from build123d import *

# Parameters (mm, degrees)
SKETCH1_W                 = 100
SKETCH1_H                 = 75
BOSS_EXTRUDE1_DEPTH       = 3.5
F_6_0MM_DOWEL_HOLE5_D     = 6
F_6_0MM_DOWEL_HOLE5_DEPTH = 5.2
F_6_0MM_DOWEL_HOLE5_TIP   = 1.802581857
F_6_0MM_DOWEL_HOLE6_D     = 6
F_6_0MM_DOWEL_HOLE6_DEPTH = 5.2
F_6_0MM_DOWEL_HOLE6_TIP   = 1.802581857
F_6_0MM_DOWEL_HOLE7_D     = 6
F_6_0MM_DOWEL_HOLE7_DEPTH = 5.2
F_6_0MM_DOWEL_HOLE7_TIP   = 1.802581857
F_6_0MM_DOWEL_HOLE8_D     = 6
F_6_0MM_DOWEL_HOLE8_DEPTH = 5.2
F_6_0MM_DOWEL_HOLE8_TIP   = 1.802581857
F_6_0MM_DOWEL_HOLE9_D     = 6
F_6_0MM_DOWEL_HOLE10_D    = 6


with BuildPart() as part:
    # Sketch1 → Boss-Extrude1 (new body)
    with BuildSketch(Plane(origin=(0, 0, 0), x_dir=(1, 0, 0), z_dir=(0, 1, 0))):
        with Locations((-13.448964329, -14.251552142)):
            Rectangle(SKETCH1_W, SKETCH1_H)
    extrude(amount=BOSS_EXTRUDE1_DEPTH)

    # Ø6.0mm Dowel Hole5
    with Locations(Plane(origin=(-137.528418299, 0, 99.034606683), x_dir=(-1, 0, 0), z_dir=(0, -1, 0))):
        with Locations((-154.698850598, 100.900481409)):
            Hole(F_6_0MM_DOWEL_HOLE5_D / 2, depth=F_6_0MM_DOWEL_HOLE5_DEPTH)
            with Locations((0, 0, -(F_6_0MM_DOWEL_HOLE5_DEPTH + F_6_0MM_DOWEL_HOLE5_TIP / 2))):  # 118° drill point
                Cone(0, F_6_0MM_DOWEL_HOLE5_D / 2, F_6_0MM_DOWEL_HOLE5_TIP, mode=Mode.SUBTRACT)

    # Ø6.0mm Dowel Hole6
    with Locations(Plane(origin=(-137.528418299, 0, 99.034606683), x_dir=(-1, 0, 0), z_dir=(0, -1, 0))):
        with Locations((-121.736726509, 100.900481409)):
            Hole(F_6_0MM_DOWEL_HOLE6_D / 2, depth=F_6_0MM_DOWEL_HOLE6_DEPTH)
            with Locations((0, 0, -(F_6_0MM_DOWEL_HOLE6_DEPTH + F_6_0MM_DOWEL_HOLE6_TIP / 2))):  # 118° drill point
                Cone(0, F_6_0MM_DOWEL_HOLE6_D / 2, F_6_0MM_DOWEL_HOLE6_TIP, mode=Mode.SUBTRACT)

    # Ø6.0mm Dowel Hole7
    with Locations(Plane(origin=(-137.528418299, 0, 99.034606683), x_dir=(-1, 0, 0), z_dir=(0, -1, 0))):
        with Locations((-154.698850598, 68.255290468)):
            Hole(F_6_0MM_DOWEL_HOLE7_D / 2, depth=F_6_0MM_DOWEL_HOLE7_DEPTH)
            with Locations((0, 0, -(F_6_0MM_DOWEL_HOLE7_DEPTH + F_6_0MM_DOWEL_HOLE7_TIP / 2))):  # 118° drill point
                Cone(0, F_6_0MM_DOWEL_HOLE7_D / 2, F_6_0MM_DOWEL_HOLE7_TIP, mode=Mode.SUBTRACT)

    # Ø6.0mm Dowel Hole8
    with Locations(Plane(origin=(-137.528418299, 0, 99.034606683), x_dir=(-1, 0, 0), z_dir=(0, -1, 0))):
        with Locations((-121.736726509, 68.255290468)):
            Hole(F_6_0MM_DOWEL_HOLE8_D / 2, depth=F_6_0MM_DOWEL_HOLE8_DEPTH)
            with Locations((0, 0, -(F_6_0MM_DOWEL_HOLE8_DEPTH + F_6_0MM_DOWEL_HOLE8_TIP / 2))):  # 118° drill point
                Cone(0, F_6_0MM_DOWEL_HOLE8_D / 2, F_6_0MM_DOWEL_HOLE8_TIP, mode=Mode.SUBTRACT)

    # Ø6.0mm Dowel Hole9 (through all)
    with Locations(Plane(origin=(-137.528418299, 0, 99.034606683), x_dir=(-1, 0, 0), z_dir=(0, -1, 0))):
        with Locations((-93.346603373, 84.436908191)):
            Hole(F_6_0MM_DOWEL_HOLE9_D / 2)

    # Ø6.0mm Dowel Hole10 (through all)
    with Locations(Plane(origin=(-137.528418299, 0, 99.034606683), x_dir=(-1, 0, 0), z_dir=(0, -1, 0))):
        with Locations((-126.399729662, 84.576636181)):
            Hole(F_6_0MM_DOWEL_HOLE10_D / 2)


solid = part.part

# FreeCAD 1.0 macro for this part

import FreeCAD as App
import Part
import Sketcher

V = App.Vector


def add_polygon(sketch, points):
    """Adds a closed chain of lines whose ends are joined by coincident constraints."""
    first, n = sketch.GeometryCount, len(points)
    for a, b in zip(points, points[1:] + points[:1]):
        sketch.addGeometry(Part.LineSegment(App.Vector(*a, 0), App.Vector(*b, 0)), False)
    for i in range(n):
        sketch.addConstraint(Sketcher.Constraint("Coincident", first + i, 2, first + (i + 1) % n, 1))

doc = App.newDocument("Part")
params = doc.addObject("Spreadsheet::Sheet", "Params")
for row, (alias, value) in enumerate([
    ("sketch1_width", "100 mm"),
    ("sketch1_height", "75 mm"),
    ("pad1_length", "3.5 mm"),
    ("sketch2_diameter", "6 mm"),
    ("hole_diameter", "6 mm"),
    ("hole_depth", "5.2 mm"),
    ("sketch3_diameter", "6 mm"),
    ("hole2_diameter", "6 mm"),
    ("hole2_depth", "5.2 mm"),
    ("sketch4_diameter", "6 mm"),
    ("hole3_diameter", "6 mm"),
    ("hole3_depth", "5.2 mm"),
    ("sketch5_diameter", "6 mm"),
    ("hole4_diameter", "6 mm"),
    ("hole4_depth", "5.2 mm"),
    ("sketch6_diameter", "6 mm"),
    ("hole5_diameter", "6 mm"),
    ("sketch7_diameter", "6 mm"),
    ("hole6_diameter", "6 mm"),
], start=1):
    params.set(f"A{row}", alias)
    params.set(f"B{row}", "=" + value)
    params.setAlias(f"B{row}", alias)

body = doc.addObject("PartDesign::Body", "Body")

# Sketch on XZ plane
sketch1 = body.newObject("Sketcher::SketchObject", "Sketch")
sketch1.AttachmentSupport = (doc.getObject("XZ_Plane"), [""])
sketch1.MapMode = "FlatFace"
add_polygon(sketch1, [(-63, -23), (-63, 52), (37, 52), (37, -23)])  # lines 0-3
sketch1.addConstraint(Sketcher.Constraint("Vertical", 0))
sketch1.addConstraint(Sketcher.Constraint("Horizontal", 1))
sketch1.addConstraint(Sketcher.Constraint("Vertical", 2))
sketch1.addConstraint(Sketcher.Constraint("Horizontal", 3))
sketch1.addConstraint(Sketcher.Constraint("DistanceX", 1, 1, 1, 2, 100.0))
sketch1.addConstraint(Sketcher.Constraint("DistanceY", 0, 1, 0, 2, 75.0))
sketch1.addConstraint(Sketcher.Constraint("DistanceX", 0, 2, -1, 1, 63.448964))
sketch1.addConstraint(Sketcher.Constraint("DistanceY", -1, 1, 0, 2, 51.751552))
sketch1.setExpression("Constraints[8]", "Params.sketch1_width")
sketch1.setExpression("Constraints[9]", "Params.sketch1_height")
pad1 = body.newObject("PartDesign::Pad", "Pad")
pad1.Profile = sketch1
pad1.setExpression("Length", "Params.pad1_length")
pad1.Reversed = True

# Sketch on XZ plane
sketch2 = body.newObject("Sketcher::SketchObject", "Sketch001")
sketch2.AttachmentSupport = (doc.getObject("XZ_Plane"), [""])
sketch2.MapMode = "FlatFace"
sketch2.addGeometry(Part.Circle(V(17.2, -1.9, 0), V(0, 0, 1), 3), False)
sketch2.addConstraint(Sketcher.Constraint("Diameter", 0, 6.0))
sketch2.addConstraint(Sketcher.Constraint("DistanceX", -1, 1, 0, 3, 17.170432))
sketch2.addConstraint(Sketcher.Constraint("DistanceY", 0, 3, -1, 1, 1.865875))
sketch2.setExpression("Constraints[0]", "Params.sketch2_diameter")
doc.recompute()
hole = body.newObject("PartDesign::Hole", "Hole")
hole.Profile = sketch2
hole.ThreadType = "None"
hole.setExpression("Diameter", "Params.hole_diameter")
hole.DepthType = "Dimension"
hole.setExpression("Depth", "Params.hole_depth")
hole.DrillPoint = "Angled"
hole.DrillPointAngle = 118

# Sketch on XZ plane
sketch3 = body.newObject("Sketcher::SketchObject", "Sketch002")
sketch3.AttachmentSupport = (doc.getObject("XZ_Plane"), [""])
sketch3.MapMode = "FlatFace"
sketch3.addGeometry(Part.Circle(V(-15.8, -1.9, 0), V(0, 0, 1), 3), False)
sketch3.addConstraint(Sketcher.Constraint("Diameter", 0, 6.0))
sketch3.addConstraint(Sketcher.Constraint("DistanceX", 0, 3, -1, 1, 15.791692))
sketch3.addConstraint(Sketcher.Constraint("DistanceY", 0, 3, -1, 1, 1.865875))
sketch3.setExpression("Constraints[0]", "Params.sketch3_diameter")
doc.recompute()
hole2 = body.newObject("PartDesign::Hole", "Hole001")
hole2.Profile = sketch3
hole2.ThreadType = "None"
hole2.setExpression("Diameter", "Params.hole2_diameter")
hole2.DepthType = "Dimension"
hole2.setExpression("Depth", "Params.hole2_depth")
hole2.DrillPoint = "Angled"
hole2.DrillPointAngle = 118

# Sketch on XZ plane
sketch4 = body.newObject("Sketcher::SketchObject", "Sketch003")
sketch4.AttachmentSupport = (doc.getObject("XZ_Plane"), [""])
sketch4.MapMode = "FlatFace"
sketch4.addGeometry(Part.Circle(V(17.2, 30.8, 0), V(0, 0, 1), 3), False)
sketch4.addConstraint(Sketcher.Constraint("Diameter", 0, 6.0))
sketch4.addConstraint(Sketcher.Constraint("DistanceX", -1, 1, 0, 3, 17.170432))
sketch4.addConstraint(Sketcher.Constraint("DistanceY", -1, 1, 0, 3, 30.779316))
sketch4.setExpression("Constraints[0]", "Params.sketch4_diameter")
doc.recompute()
hole3 = body.newObject("PartDesign::Hole", "Hole002")
hole3.Profile = sketch4
hole3.ThreadType = "None"
hole3.setExpression("Diameter", "Params.hole3_diameter")
hole3.DepthType = "Dimension"
hole3.setExpression("Depth", "Params.hole3_depth")
hole3.DrillPoint = "Angled"
hole3.DrillPointAngle = 118

# Sketch on XZ plane
sketch5 = body.newObject("Sketcher::SketchObject", "Sketch004")
sketch5.AttachmentSupport = (doc.getObject("XZ_Plane"), [""])
sketch5.MapMode = "FlatFace"
sketch5.addGeometry(Part.Circle(V(-15.8, 30.8, 0), V(0, 0, 1), 3), False)
sketch5.addConstraint(Sketcher.Constraint("Diameter", 0, 6.0))
sketch5.addConstraint(Sketcher.Constraint("DistanceX", 0, 3, -1, 1, 15.791692))
sketch5.addConstraint(Sketcher.Constraint("DistanceY", -1, 1, 0, 3, 30.779316))
sketch5.setExpression("Constraints[0]", "Params.sketch5_diameter")
doc.recompute()
hole4 = body.newObject("PartDesign::Hole", "Hole003")
hole4.Profile = sketch5
hole4.ThreadType = "None"
hole4.setExpression("Diameter", "Params.hole4_diameter")
hole4.DepthType = "Dimension"
hole4.setExpression("Depth", "Params.hole4_depth")
hole4.DrillPoint = "Angled"
hole4.DrillPointAngle = 118

# Sketch on XZ plane
sketch6 = body.newObject("Sketcher::SketchObject", "Sketch005")
sketch6.AttachmentSupport = (doc.getObject("XZ_Plane"), [""])
sketch6.MapMode = "FlatFace"
sketch6.addGeometry(Part.Circle(V(-44.2, 14.6, 0), V(0, 0, 1), 3), False)
sketch6.addConstraint(Sketcher.Constraint("Diameter", 0, 6.0))
sketch6.addConstraint(Sketcher.Constraint("DistanceY", -1, 1, 0, 3, 14.597698))
sketch6.addConstraint(Sketcher.Constraint("DistanceX", 0, 3, -1, 1, 44.181815))
sketch6.setExpression("Constraints[0]", "Params.sketch6_diameter")
doc.recompute()
hole5 = body.newObject("PartDesign::Hole", "Hole004")
hole5.Profile = sketch6
hole5.ThreadType = "None"
hole5.setExpression("Diameter", "Params.hole5_diameter")
hole5.DepthType = "ThroughAll"

# Sketch on XZ plane
sketch7 = body.newObject("Sketcher::SketchObject", "Sketch006")
sketch7.AttachmentSupport = (doc.getObject("XZ_Plane"), [""])
sketch7.MapMode = "FlatFace"
sketch7.addGeometry(Part.Circle(V(-11.1, 14.5, 0), V(0, 0, 1), 3), False)
sketch7.addConstraint(Sketcher.Constraint("Diameter", 0, 6.0))
sketch7.addConstraint(Sketcher.Constraint("DistanceX", 0, 3, -1, 1, 11.128689))
sketch7.addConstraint(Sketcher.Constraint("DistanceY", -1, 1, 0, 3, 14.457971))
sketch7.setExpression("Constraints[0]", "Params.sketch7_diameter")
doc.recompute()
hole6 = body.newObject("PartDesign::Hole", "Hole005")
hole6.Profile = sketch7
hole6.ThreadType = "None"
hole6.setExpression("Diameter", "Params.hole6_diameter")
hole6.DepthType = "ThroughAll"

doc.recompute()
